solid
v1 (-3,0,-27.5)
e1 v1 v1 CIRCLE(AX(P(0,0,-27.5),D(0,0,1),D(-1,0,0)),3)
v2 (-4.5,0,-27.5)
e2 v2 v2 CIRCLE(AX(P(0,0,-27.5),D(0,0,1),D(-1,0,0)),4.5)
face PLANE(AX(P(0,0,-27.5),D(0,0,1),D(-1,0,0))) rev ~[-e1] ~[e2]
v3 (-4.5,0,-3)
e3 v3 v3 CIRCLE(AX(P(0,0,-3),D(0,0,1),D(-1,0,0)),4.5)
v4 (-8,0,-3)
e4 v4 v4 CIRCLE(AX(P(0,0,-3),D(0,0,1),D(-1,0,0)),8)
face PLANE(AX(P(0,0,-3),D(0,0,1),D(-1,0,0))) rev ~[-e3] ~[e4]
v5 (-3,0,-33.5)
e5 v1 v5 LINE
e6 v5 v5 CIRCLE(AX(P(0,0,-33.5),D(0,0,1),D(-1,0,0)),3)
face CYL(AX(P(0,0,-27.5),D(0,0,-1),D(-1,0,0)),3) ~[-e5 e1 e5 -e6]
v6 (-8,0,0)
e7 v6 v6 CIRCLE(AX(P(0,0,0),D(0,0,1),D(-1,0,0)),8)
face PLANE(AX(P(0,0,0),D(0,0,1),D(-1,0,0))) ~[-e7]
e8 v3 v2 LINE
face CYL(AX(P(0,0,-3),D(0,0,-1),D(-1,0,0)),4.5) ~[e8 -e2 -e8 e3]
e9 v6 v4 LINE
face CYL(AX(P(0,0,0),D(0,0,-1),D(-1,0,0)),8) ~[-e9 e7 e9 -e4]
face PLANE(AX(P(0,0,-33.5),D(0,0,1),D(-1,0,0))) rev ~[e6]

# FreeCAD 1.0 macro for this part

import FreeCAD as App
import Part
import Sketcher
from FreeCAD import Vector
Q = App.Units.Quantity

doc = App.newDocument("Part")
body = doc.addObject("PartDesign::Body", "Body")

# Sketch on XZ plane
sketch1 = body.newObject("Sketcher::SketchObject", "Sketch")
sketch1.AttachmentSupport = (doc.getObject("XZ_Plane"), [""])
sketch1.MapMode = "FlatFace"
sketch1.addGeometry(Part.LineSegment(Vector(-8, 0, 0), Vector(0, 0, 0)), False)
sketch1.addGeometry(Part.LineSegment(Vector(0, 0, 0), Vector(0, -33.5, 0)), False)
sketch1.addGeometry(Part.LineSegment(Vector(0, -33.5, 0), Vector(-3, -33.5, 0)), False)
sketch1.addGeometry(Part.LineSegment(Vector(-3, -33.5, 0), Vector(-3, -27.5, 0)), False)
sketch1.addGeometry(Part.LineSegment(Vector(-3, -27.5, 0), Vector(-4.5, -27.5, 0)), False)
sketch1.addGeometry(Part.LineSegment(Vector(-4.5, -27.5, 0), Vector(-4.5, -3, 0)), False)
sketch1.addGeometry(Part.LineSegment(Vector(-4.5, -3, 0), Vector(-8, -3, 0)), False)
sketch1.addGeometry(Part.LineSegment(Vector(-8, -3, 0), Vector(-8, 0, 0)), False)
sketch1.addConstraint(Sketcher.Constraint("Coincident", 0, 2, 1, 1))
sketch1.addConstraint(Sketcher.Constraint("Coincident", 1, 2, 2, 1))
sketch1.addConstraint(Sketcher.Constraint("Coincident", 2, 2, 3, 1))
sketch1.addConstraint(Sketcher.Constraint("Coincident", 3, 2, 4, 1))
sketch1.addConstraint(Sketcher.Constraint("Coincident", 4, 2, 5, 1))
sketch1.addConstraint(Sketcher.Constraint("Coincident", 5, 2, 6, 1))
sketch1.addConstraint(Sketcher.Constraint("Coincident", 6, 2, 7, 1))
sketch1.addConstraint(Sketcher.Constraint("Coincident", 7, 2, 0, 1))
sketch1.addConstraint(Sketcher.Constraint("Horizontal", 0))
sketch1.addConstraint(Sketcher.Constraint("Vertical", 1))
sketch1.addConstraint(Sketcher.Constraint("Horizontal", 2))
sketch1.addConstraint(Sketcher.Constraint("Vertical", 3))
sketch1.addConstraint(Sketcher.Constraint("Horizontal", 4))
sketch1.addConstraint(Sketcher.Constraint("Vertical", 5))
sketch1.addConstraint(Sketcher.Constraint("Horizontal", 6))
sketch1.addConstraint(Sketcher.Constraint("Vertical", 7))
sketch1.addConstraint(Sketcher.Constraint("Coincident", 0, 2, -1, 1))
sketch1.addConstraint(Sketcher.Constraint("Equal", 2, 7))
sketch1.addConstraint(Sketcher.Constraint("DistanceX", 2, 2, 2, 1, Q("3 mm")))
sketch1.addConstraint(Sketcher.Constraint("DistanceY", 3, 1, 3, 2, Q("6 mm")))
sketch1.addConstraint(Sketcher.Constraint("DistanceY", 5, 1, 5, 2, Q("24.5 mm")))
sketch1.addConstraint(Sketcher.Constraint("DistanceX", 0, 1, 0, 2, Q("8 mm")))
sketch1.addConstraint(Sketcher.Constraint("DistanceX", 4, 2, 4, 1, Q("1.5 mm")))
revolution = body.newObject("PartDesign::Revolution", "Revolution")
revolution.Profile = sketch1
revolution.ReferenceAxis = (sketch1, ["V_Axis"])
revolution.Angle = 360

doc.recompute()
